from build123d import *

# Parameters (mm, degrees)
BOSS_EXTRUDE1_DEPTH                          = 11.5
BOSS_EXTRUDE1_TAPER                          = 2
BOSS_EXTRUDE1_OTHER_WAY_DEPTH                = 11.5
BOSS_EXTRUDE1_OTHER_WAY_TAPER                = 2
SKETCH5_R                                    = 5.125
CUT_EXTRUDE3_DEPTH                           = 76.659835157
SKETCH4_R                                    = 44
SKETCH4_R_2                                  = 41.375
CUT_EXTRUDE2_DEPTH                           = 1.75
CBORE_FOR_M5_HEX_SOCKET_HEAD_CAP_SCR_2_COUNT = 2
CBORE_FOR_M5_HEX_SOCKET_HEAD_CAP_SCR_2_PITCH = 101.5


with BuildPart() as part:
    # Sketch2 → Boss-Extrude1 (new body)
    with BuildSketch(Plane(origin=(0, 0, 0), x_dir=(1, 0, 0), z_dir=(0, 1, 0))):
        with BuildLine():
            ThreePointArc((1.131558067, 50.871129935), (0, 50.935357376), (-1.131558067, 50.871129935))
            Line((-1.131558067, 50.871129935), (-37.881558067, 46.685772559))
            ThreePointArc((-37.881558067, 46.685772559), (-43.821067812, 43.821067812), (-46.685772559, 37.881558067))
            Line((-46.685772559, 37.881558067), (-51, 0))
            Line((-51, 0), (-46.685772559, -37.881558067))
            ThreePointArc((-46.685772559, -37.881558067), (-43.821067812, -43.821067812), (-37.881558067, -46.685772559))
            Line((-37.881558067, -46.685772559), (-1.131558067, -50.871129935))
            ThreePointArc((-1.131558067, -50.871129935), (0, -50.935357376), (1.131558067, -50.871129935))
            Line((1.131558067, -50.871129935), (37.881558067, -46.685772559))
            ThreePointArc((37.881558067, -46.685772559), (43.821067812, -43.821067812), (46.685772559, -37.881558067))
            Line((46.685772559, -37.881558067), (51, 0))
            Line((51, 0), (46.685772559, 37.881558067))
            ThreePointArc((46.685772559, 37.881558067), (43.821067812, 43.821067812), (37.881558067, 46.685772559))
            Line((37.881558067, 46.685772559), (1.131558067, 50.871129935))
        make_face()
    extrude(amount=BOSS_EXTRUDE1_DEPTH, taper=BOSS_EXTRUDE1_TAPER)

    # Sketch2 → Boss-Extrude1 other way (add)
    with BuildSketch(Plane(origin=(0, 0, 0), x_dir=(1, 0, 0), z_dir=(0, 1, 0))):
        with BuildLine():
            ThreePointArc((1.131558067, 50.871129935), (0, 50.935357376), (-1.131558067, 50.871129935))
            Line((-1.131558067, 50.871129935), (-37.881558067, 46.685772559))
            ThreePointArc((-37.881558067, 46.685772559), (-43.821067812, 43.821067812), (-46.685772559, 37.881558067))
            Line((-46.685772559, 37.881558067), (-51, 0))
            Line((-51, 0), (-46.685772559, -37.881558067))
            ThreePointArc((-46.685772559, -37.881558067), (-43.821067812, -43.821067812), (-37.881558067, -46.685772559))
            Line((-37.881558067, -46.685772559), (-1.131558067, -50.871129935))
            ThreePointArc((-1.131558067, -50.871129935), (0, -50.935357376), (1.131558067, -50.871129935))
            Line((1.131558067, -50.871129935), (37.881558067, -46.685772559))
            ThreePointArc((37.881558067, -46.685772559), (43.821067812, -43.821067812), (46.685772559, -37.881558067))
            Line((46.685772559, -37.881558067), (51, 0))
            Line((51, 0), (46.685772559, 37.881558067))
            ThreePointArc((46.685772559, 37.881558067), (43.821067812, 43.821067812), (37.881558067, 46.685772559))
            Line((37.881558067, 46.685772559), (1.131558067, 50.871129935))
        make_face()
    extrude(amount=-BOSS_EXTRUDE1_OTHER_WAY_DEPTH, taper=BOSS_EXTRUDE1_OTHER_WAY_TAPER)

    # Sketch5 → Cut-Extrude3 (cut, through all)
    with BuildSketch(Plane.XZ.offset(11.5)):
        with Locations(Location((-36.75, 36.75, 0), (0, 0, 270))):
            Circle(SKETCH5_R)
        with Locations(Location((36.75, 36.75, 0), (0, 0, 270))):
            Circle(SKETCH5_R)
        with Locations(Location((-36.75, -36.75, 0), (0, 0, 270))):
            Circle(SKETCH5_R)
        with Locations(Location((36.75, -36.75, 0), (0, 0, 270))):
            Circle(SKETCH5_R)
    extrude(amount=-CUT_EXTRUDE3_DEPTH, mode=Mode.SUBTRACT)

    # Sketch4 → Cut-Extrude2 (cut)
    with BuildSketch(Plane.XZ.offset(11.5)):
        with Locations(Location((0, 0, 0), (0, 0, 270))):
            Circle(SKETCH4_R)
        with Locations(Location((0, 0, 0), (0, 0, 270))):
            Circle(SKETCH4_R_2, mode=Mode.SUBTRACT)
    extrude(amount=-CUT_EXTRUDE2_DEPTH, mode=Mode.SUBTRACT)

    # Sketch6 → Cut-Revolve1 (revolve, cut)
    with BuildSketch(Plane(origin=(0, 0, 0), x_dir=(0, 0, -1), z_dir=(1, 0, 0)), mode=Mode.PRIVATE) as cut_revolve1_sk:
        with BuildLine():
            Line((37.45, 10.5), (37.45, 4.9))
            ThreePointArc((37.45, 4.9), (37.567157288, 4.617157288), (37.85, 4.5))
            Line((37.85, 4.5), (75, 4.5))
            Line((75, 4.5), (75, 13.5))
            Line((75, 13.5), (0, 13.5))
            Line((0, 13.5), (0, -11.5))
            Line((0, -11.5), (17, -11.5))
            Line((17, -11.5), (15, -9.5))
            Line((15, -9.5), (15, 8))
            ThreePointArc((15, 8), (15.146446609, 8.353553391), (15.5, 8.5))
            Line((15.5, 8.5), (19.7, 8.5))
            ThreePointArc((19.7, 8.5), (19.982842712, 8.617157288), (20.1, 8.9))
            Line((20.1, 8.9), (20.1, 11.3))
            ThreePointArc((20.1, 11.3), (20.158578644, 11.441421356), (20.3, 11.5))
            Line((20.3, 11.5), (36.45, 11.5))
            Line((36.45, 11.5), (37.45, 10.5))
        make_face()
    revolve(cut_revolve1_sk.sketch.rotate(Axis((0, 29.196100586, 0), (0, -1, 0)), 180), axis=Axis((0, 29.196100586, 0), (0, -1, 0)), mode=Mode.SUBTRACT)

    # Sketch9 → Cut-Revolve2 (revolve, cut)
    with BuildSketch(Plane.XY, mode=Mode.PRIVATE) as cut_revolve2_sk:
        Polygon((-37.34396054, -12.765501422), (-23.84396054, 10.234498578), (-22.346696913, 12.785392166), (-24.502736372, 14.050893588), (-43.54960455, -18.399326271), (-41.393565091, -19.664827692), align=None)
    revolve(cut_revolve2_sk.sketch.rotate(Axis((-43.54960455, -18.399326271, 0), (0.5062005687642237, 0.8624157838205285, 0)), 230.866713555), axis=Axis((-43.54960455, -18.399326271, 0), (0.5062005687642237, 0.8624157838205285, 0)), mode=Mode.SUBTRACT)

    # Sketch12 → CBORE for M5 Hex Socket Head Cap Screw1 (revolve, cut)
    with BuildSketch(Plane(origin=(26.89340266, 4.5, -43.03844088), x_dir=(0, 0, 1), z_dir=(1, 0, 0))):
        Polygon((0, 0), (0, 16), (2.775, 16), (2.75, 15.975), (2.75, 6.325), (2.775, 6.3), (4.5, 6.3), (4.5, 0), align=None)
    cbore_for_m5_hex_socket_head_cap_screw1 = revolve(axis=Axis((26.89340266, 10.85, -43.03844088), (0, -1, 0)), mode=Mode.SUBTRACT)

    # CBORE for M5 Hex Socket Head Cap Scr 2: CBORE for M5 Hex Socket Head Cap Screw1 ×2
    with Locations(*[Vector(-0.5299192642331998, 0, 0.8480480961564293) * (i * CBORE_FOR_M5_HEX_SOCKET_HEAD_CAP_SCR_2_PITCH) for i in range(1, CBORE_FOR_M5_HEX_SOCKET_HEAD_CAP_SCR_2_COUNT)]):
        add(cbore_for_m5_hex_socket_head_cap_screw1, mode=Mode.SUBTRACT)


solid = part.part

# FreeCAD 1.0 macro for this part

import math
import FreeCAD as App
import Part
import Sketcher
from FreeCAD import Vector
Q = App.Units.Quantity

doc = App.newDocument("Part")
body = doc.addObject("PartDesign::Body", "Body")

# Sketch on XZ plane
sketch1 = body.newObject("Sketcher::SketchObject", "Sketch")
sketch1.AttachmentSupport = (doc.getObject("XZ_Plane"), [""])
sketch1.MapMode = "FlatFace"
sketch1.addGeometry(Part.ArcOfCircle(Part.Circle(Vector(0, -40.9, 0), Vector(0, 0, 1), 10), math.radians(-96.5), math.radians(-83.5)), False)
sketch1.addGeometry(Part.LineSegment(Vector(-1.1, -50.9, 0), Vector(-37.9, -46.7, 0)), False)
sketch1.addGeometry(Part.ArcOfCircle(Part.Circle(Vector(-36.8, -36.8, 0), Vector(0, 0, 1), 10), math.radians(-174), math.radians(-96)), False)
sketch1.addGeometry(Part.LineSegment(Vector(-46.7, -37.9, 0), Vector(-51, 0, 0)), False)
sketch1.addGeometry(Part.LineSegment(Vector(-51, 0, 0), Vector(-46.7, 37.9, 0)), False)
sketch1.addGeometry(Part.ArcOfCircle(Part.Circle(Vector(-36.8, 36.8, 0), Vector(0, 0, 1), 10), math.radians(96), math.radians(174)), False)
sketch1.addGeometry(Part.LineSegment(Vector(-37.9, 46.7, 0), Vector(-1.1, 50.9, 0)), False)
sketch1.addGeometry(Part.ArcOfCircle(Part.Circle(Vector(0, 40.9, 0), Vector(0, 0, 1), 10), math.radians(83.5), math.radians(96.5)), False)
sketch1.addGeometry(Part.LineSegment(Vector(1.1, 50.9, 0), Vector(37.9, 46.7, 0)), False)
sketch1.addGeometry(Part.ArcOfCircle(Part.Circle(Vector(36.8, 36.8, 0), Vector(0, 0, 1), 10), math.radians(6), math.radians(84)), False)
sketch1.addGeometry(Part.LineSegment(Vector(46.7, 37.9, 0), Vector(51, 0, 0)), False)
sketch1.addGeometry(Part.LineSegment(Vector(51, 0, 0), Vector(46.7, -37.9, 0)), False)
sketch1.addGeometry(Part.ArcOfCircle(Part.Circle(Vector(36.8, -36.8, 0), Vector(0, 0, 1), 10), math.radians(-84), math.radians(-6)), False)
sketch1.addGeometry(Part.LineSegment(Vector(37.9, -46.7, 0), Vector(1.1, -50.9, 0)), False)
sketch1.addConstraint(Sketcher.Constraint("Tangent", 0, 1, 1, 1))
sketch1.addConstraint(Sketcher.Constraint("Tangent", 1, 2, 2, 2))
sketch1.addConstraint(Sketcher.Constraint("Tangent", 2, 1, 3, 1))
sketch1.addConstraint(Sketcher.Constraint("Coincident", 3, 2, 4, 1))
sketch1.addConstraint(Sketcher.Constraint("Tangent", 4, 2, 5, 2))
sketch1.addConstraint(Sketcher.Constraint("Tangent", 5, 1, 6, 1))
sketch1.addConstraint(Sketcher.Constraint("Tangent", 6, 2, 7, 2))
sketch1.addConstraint(Sketcher.Constraint("Tangent", 7, 1, 8, 1))
sketch1.addConstraint(Sketcher.Constraint("Tangent", 8, 2, 9, 2))
sketch1.addConstraint(Sketcher.Constraint("Tangent", 9, 1, 10, 1))
sketch1.addConstraint(Sketcher.Constraint("Coincident", 10, 2, 11, 1))
sketch1.addConstraint(Sketcher.Constraint("Tangent", 11, 2, 12, 2))
sketch1.addConstraint(Sketcher.Constraint("Tangent", 12, 1, 13, 1))
sketch1.addConstraint(Sketcher.Constraint("Tangent", 13, 2, 0, 2))
sketch1.addConstraint(Sketcher.Constraint("Equal", 0, 2))
sketch1.addConstraint(Sketcher.Constraint("Equal", 2, 5))
sketch1.addConstraint(Sketcher.Constraint("Equal", 5, 7))
sketch1.addConstraint(Sketcher.Constraint("Equal", 7, 9))
sketch1.addConstraint(Sketcher.Constraint("Equal", 9, 12))
sketch1.addConstraint(Sketcher.Constraint("Symmetric", 0, 3, 7, 3, -1, 1))
sketch1.addConstraint(Sketcher.Constraint("Symmetric", 2, 3, 9, 3, -1, 1))
sketch1.addConstraint(Sketcher.Constraint("Symmetric", 5, 3, 12, 3, -1, 1))
sketch1.addConstraint(Sketcher.Constraint("Symmetric", 3, 2, 10, 2, -1, 1))
sketch1.addConstraint(Sketcher.Constraint("Symmetric", 5, 3, 9, 3, -2))
sketch1.addConstraint(Sketcher.Constraint("PointOnObject", 0, 3, -2))
sketch1.addConstraint(Sketcher.Constraint("PointOnObject", 3, 2, -1))
sketch1.addConstraint(Sketcher.Constraint("Perpendicular", 1, 4))
sketch1.addConstraint(Sketcher.Constraint("Radius", 0, 10.0))
sketch1.addConstraint(Sketcher.Constraint("DistanceX", 3, 2, -1, 1, 51.0))
sketch1.addConstraint(Sketcher.Constraint("DistanceY", 2, 3, 5, 3, 73.5))
sketch1.addConstraint(Sketcher.Constraint("DistanceX", 5, 3, 9, 3, 73.5))
pad1 = body.newObject("PartDesign::Pad", "Pad")
pad1.Profile = sketch1
pad1.Length = 11.5
pad1.Reversed = True
pad1.TaperAngle = -2

# Sketch on XZ plane
sketch2 = body.newObject("Sketcher::SketchObject", "Sketch001")
sketch2.AttachmentSupport = (doc.getObject("XZ_Plane"), [""])
sketch2.MapMode = "FlatFace"
sketch2.addGeometry(Part.ArcOfCircle(Part.Circle(Vector(0, -40.9, 0), Vector(0, 0, 1), 10), math.radians(-96.5), math.radians(-83.5)), False)
sketch2.addGeometry(Part.LineSegment(Vector(-1.1, -50.9, 0), Vector(-37.9, -46.7, 0)), False)
sketch2.addGeometry(Part.ArcOfCircle(Part.Circle(Vector(-36.8, -36.8, 0), Vector(0, 0, 1), 10), math.radians(-174), math.radians(-96)), False)
sketch2.addGeometry(Part.LineSegment(Vector(-46.7, -37.9, 0), Vector(-51, 0, 0)), False)
sketch2.addGeometry(Part.LineSegment(Vector(-51, 0, 0), Vector(-46.7, 37.9, 0)), False)
sketch2.addGeometry(Part.ArcOfCircle(Part.Circle(Vector(-36.8, 36.8, 0), Vector(0, 0, 1), 10), math.radians(96), math.radians(174)), False)
sketch2.addGeometry(Part.LineSegment(Vector(-37.9, 46.7, 0), Vector(-1.1, 50.9, 0)), False)
sketch2.addGeometry(Part.ArcOfCircle(Part.Circle(Vector(0, 40.9, 0), Vector(0, 0, 1), 10), math.radians(83.5), math.radians(96.5)), False)
sketch2.addGeometry(Part.LineSegment(Vector(1.1, 50.9, 0), Vector(37.9, 46.7, 0)), False)
sketch2.addGeometry(Part.ArcOfCircle(Part.Circle(Vector(36.8, 36.8, 0), Vector(0, 0, 1), 10), math.radians(6), math.radians(84)), False)
sketch2.addGeometry(Part.LineSegment(Vector(46.7, 37.9, 0), Vector(51, 0, 0)), False)
sketch2.addGeometry(Part.LineSegment(Vector(51, 0, 0), Vector(46.7, -37.9, 0)), False)
sketch2.addGeometry(Part.ArcOfCircle(Part.Circle(Vector(36.8, -36.8, 0), Vector(0, 0, 1), 10), math.radians(-84), math.radians(-6)), False)
sketch2.addGeometry(Part.LineSegment(Vector(37.9, -46.7, 0), Vector(1.1, -50.9, 0)), False)
sketch2.addConstraint(Sketcher.Constraint("Tangent", 0, 1, 1, 1))
sketch2.addConstraint(Sketcher.Constraint("Tangent", 1, 2, 2, 2))
sketch2.addConstraint(Sketcher.Constraint("Tangent", 2, 1, 3, 1))
sketch2.addConstraint(Sketcher.Constraint("Coincident", 3, 2, 4, 1))
sketch2.addConstraint(Sketcher.Constraint("Tangent", 4, 2, 5, 2))
sketch2.addConstraint(Sketcher.Constraint("Tangent", 5, 1, 6, 1))
sketch2.addConstraint(Sketcher.Constraint("Tangent", 6, 2, 7, 2))
sketch2.addConstraint(Sketcher.Constraint("Tangent", 7, 1, 8, 1))
sketch2.addConstraint(Sketcher.Constraint("Tangent", 8, 2, 9, 2))
sketch2.addConstraint(Sketcher.Constraint("Tangent", 9, 1, 10, 1))
sketch2.addConstraint(Sketcher.Constraint("Coincident", 10, 2, 11, 1))
sketch2.addConstraint(Sketcher.Constraint("Tangent", 11, 2, 12, 2))
sketch2.addConstraint(Sketcher.Constraint("Tangent", 12, 1, 13, 1))
sketch2.addConstraint(Sketcher.Constraint("Tangent", 13, 2, 0, 2))
sketch2.addConstraint(Sketcher.Constraint("Equal", 0, 2))
sketch2.addConstraint(Sketcher.Constraint("Equal", 2, 5))
sketch2.addConstraint(Sketcher.Constraint("Equal", 5, 7))
sketch2.addConstraint(Sketcher.Constraint("Equal", 7, 9))
sketch2.addConstraint(Sketcher.Constraint("Equal", 9, 12))
sketch2.addConstraint(Sketcher.Constraint("Symmetric", 0, 3, 7, 3, -1, 1))
sketch2.addConstraint(Sketcher.Constraint("Symmetric", 2, 3, 9, 3, -1, 1))
sketch2.addConstraint(Sketcher.Constraint("Symmetric", 5, 3, 12, 3, -1, 1))
sketch2.addConstraint(Sketcher.Constraint("Symmetric", 3, 2, 10, 2, -1, 1))
sketch2.addConstraint(Sketcher.Constraint("Symmetric", 5, 3, 9, 3, -2))
sketch2.addConstraint(Sketcher.Constraint("PointOnObject", 0, 3, -2))
sketch2.addConstraint(Sketcher.Constraint("PointOnObject", 3, 2, -1))
sketch2.addConstraint(Sketcher.Constraint("Perpendicular", 1, 4))
sketch2.addConstraint(Sketcher.Constraint("Radius", 0, 10.0))
sketch2.addConstraint(Sketcher.Constraint("DistanceX", 3, 2, -1, 1, 51.0))
sketch2.addConstraint(Sketcher.Constraint("DistanceY", 2, 3, 5, 3, 73.5))
sketch2.addConstraint(Sketcher.Constraint("DistanceX", 5, 3, 9, 3, 73.5))
pad2 = body.newObject("PartDesign::Pad", "Pad001")
pad2.Profile = sketch2
pad2.Length = 11.5
pad2.TaperAngle = -2

# Sketch on XZ plane
sketch3 = body.newObject("Sketcher::SketchObject", "Sketch002")
sketch3.AttachmentSupport = (doc.getObject("XZ_Plane"), [""])
sketch3.MapMode = "FlatFace"
sketch3.AttachmentOffset = App.Placement(Vector(0, 0, 11.5), App.Rotation())
sketch3.addGeometry(Part.Circle(Vector(-37, 37, 0), Vector(0, 0, 1), 5), False)
sketch3.addGeometry(Part.Circle(Vector(37, 37, 0), Vector(0, 0, 1), 5), False)
sketch3.addGeometry(Part.Circle(Vector(-37, -37, 0), Vector(0, 0, 1), 5), False)
sketch3.addGeometry(Part.Circle(Vector(37, -37, 0), Vector(0, 0, 1), 5), False)
sketch3.addConstraint(Sketcher.Constraint("Equal", 0, 1))
sketch3.addConstraint(Sketcher.Constraint("Equal", 1, 2))
sketch3.addConstraint(Sketcher.Constraint("Equal", 2, 3))
sketch3.addConstraint(Sketcher.Constraint("Symmetric", 1, 3, 2, 3, -1, 1))
sketch3.addConstraint(Sketcher.Constraint("Symmetric", 0, 3, 3, 3, -1, 1))
sketch3.addConstraint(Sketcher.Constraint("Symmetric", 0, 3, 1, 3, -2))
sketch3.addConstraint(Sketcher.Constraint("Diameter", 0, 10.25))
sketch3.addConstraint(Sketcher.Constraint("DistanceX", 0, 3, 1, 3, 73.5))
sketch3.addConstraint(Sketcher.Constraint("DistanceY", 2, 3, 0, 3, 73.5))
pocket1 = body.newObject("PartDesign::Pocket", "Pocket")
pocket1.Profile = sketch3
pocket1.Type = "ThroughAll"

# Sketch on XZ plane
sketch4 = body.newObject("Sketcher::SketchObject", "Sketch003")
sketch4.AttachmentSupport = (doc.getObject("XZ_Plane"), [""])
sketch4.MapMode = "FlatFace"
sketch4.AttachmentOffset = App.Placement(Vector(0, 0, 11.5), App.Rotation())
sketch4.addGeometry(Part.Circle(Vector(0, 0, 0), Vector(0, 0, 1), 44), False)
sketch4.addGeometry(Part.Circle(Vector(0, 0, 0), Vector(0, 0, 1), 41), False)
sketch4.addConstraint(Sketcher.Constraint("Coincident", 0, 3, -1, 1))
sketch4.addConstraint(Sketcher.Constraint("Coincident", 1, 3, -1, 1))
sketch4.addConstraint(Sketcher.Constraint("Diameter", 0, 88.0))
sketch4.addConstraint(Sketcher.Constraint("Diameter", 1, 82.75))
pocket2 = body.newObject("PartDesign::Pocket", "Pocket001")
pocket2.Profile = sketch4
pocket2.Length = 1.75

# Sketch on YZ plane
sketch5 = body.newObject("Sketcher::SketchObject", "Sketch004")
sketch5.AttachmentSupport = (doc.getObject("YZ_Plane"), [""])
sketch5.MapMode = "FlatFace"
sketch5.addGeometry(Part.LineSegment(Vector(10.5, -37.45, 0), Vector(4.9, -37.45, 0)), False)
sketch5.addGeometry(Part.ArcOfCircle(Part.Circle(Vector(4.9, -37.85, 0), Vector(0, 0, 1), 0.4), math.radians(90), math.radians(180)), False)
sketch5.addGeometry(Part.LineSegment(Vector(4.5, -37.85, 0), Vector(4.5, -75, 0)), False)
sketch5.addGeometry(Part.LineSegment(Vector(4.5, -75, 0), Vector(13.5, -75, 0)), False)
sketch5.addGeometry(Part.LineSegment(Vector(13.5, -75, 0), Vector(13.5, 0, 0)), False)
sketch5.addGeometry(Part.LineSegment(Vector(13.5, 0, 0), Vector(-11.5, 0, 0)), False)
sketch5.addGeometry(Part.LineSegment(Vector(-11.5, 0, 0), Vector(-11.5, -17, 0)), False)
sketch5.addGeometry(Part.LineSegment(Vector(-11.5, -17, 0), Vector(-9.5, -15, 0)), False)
sketch5.addGeometry(Part.LineSegment(Vector(-9.5, -15, 0), Vector(8, -15, 0)), False)
sketch5.addGeometry(Part.ArcOfCircle(Part.Circle(Vector(8, -15.5, 0), Vector(0, 0, 1), 0.5), math.radians(0), math.radians(90)), False)
sketch5.addGeometry(Part.LineSegment(Vector(8.5, -15.5, 0), Vector(8.5, -19.7, 0)), False)
sketch5.addGeometry(Part.ArcOfCircle(Part.Circle(Vector(8.9, -19.7, 0), Vector(0, 0, 1), 0.4), math.radians(-180), math.radians(-90)), False)
sketch5.addGeometry(Part.LineSegment(Vector(8.9, -20.1, 0), Vector(11.3, -20.1, 0)), False)
sketch5.addGeometry(Part.ArcOfCircle(Part.Circle(Vector(11.3, -20.3, 0), Vector(0, 0, 1), 0.2), math.radians(0), math.radians(90)), False)
sketch5.addGeometry(Part.LineSegment(Vector(11.5, -20.3, 0), Vector(11.5, -36.45, 0)), False)
sketch5.addGeometry(Part.LineSegment(Vector(11.5, -36.45, 0), Vector(10.5, -37.45, 0)), False)
sketch5.addConstraint(Sketcher.Constraint("Tangent", 0, 2, 1, 1))
sketch5.addConstraint(Sketcher.Constraint("Tangent", 1, 2, 2, 1))
sketch5.addConstraint(Sketcher.Constraint("Coincident", 2, 2, 3, 1))
sketch5.addConstraint(Sketcher.Constraint("Coincident", 3, 2, 4, 1))
sketch5.addConstraint(Sketcher.Constraint("Coincident", 4, 2, 5, 1))
sketch5.addConstraint(Sketcher.Constraint("Coincident", 5, 2, 6, 1))
sketch5.addConstraint(Sketcher.Constraint("Coincident", 6, 2, 7, 1))
sketch5.addConstraint(Sketcher.Constraint("Coincident", 7, 2, 8, 1))
sketch5.addConstraint(Sketcher.Constraint("Tangent", 8, 2, 9, 2))
sketch5.addConstraint(Sketcher.Constraint("Tangent", 9, 1, 10, 1))
sketch5.addConstraint(Sketcher.Constraint("Tangent", 10, 2, 11, 1))
sketch5.addConstraint(Sketcher.Constraint("Tangent", 11, 2, 12, 1))
sketch5.addConstraint(Sketcher.Constraint("Tangent", 12, 2, 13, 2))
sketch5.addConstraint(Sketcher.Constraint("Tangent", 13, 1, 14, 1))
sketch5.addConstraint(Sketcher.Constraint("Coincident", 14, 2, 15, 1))
sketch5.addConstraint(Sketcher.Constraint("Coincident", 15, 2, 0, 1))
sketch5.addConstraint(Sketcher.Constraint("Horizontal", 0))
sketch5.addConstraint(Sketcher.Constraint("Vertical", 2))
sketch5.addConstraint(Sketcher.Constraint("Horizontal", 3))
sketch5.addConstraint(Sketcher.Constraint("Vertical", 4))
sketch5.addConstraint(Sketcher.Constraint("Horizontal", 5))
sketch5.addConstraint(Sketcher.Constraint("Vertical", 6))
sketch5.addConstraint(Sketcher.Constraint("Horizontal", 8))
sketch5.addConstraint(Sketcher.Constraint("Vertical", 10))
sketch5.addConstraint(Sketcher.Constraint("Horizontal", 12))
sketch5.addConstraint(Sketcher.Constraint("Vertical", 14))
sketch5.addConstraint(Sketcher.Constraint("Equal", 1, 11))
sketch5.addConstraint(Sketcher.Constraint("PointOnObject", 4, 2, -1))
sketch5.addConstraint(Sketcher.Constraint("Parallel", 7, 15))
sketch5.addConstraint(Sketcher.Constraint("Radius", 1, 0.4))
sketch5.addConstraint(Sketcher.Constraint("Radius", 9, 0.5))
sketch5.addConstraint(Sketcher.Constraint("Radius", 13, 0.2))
sketch5.addConstraint(Sketcher.Constraint("DistanceX", 3, 1, 3, 2, 9.0))
sketch5.addConstraint(Sketcher.Constraint("DistanceX", 5, 2, 5, 1, 25.0))
sketch5.addConstraint(Sketcher.Constraint("DistanceY", 4, 1, 4, 2, 75.0))
sketch5.addConstraint(Sketcher.Constraint("DistanceY", 6, 2, 6, 1, 17.0))
sketch5.addConstraint(Sketcher.Constraint("Angle", 7, Q("45 deg")))
sketch5.addConstraint(Sketcher.Constraint("DistanceX", 0, 2, 0, 1, 5.6))
sketch5.addConstraint(Sketcher.Constraint("DistanceX", 8, 1, 8, 2, 17.5))
sketch5.addConstraint(Sketcher.Constraint("DistanceX", 12, 1, 12, 2, 2.4))
sketch5.addConstraint(Sketcher.Constraint("DistanceY", 10, 2, 10, 1, 4.2))
sketch5.addConstraint(Sketcher.Constraint("DistanceX", -1, 1, 9, 3, 8.0))
sketch5.addConstraint(Sketcher.Constraint("DistanceY", 7, 2, -1, 1, 15.0))
sketch5.addConstraint(Sketcher.Constraint("DistanceY", 2, 2, 2, 1, 37.15))
groove = body.newObject("PartDesign::Groove", "Groove")
groove.Profile = sketch5
groove.ReferenceAxis = (sketch5, ["H_Axis"])
groove.Angle = 360

# Sketch on XY plane
sketch6 = body.newObject("Sketcher::SketchObject", "Sketch005")
sketch6.AttachmentSupport = (doc.getObject("XY_Plane"), [""])
sketch6.MapMode = "FlatFace"
sketch6.addGeometry(Part.LineSegment(Vector(-37.3, -12.8, 0), Vector(-23.8, 10.2, 0)), False)
sketch6.addGeometry(Part.LineSegment(Vector(-23.8, 10.2, 0), Vector(-22.3, 12.8, 0)), False)
sketch6.addGeometry(Part.LineSegment(Vector(-22.3, 12.8, 0), Vector(-24.5, 14.1, 0)), False)
sketch6.addGeometry(Part.LineSegment(Vector(-24.5, 14.1, 0), Vector(-43.5, -18.4, 0)), False)
sketch6.addGeometry(Part.LineSegment(Vector(-43.5, -18.4, 0), Vector(-41.4, -19.7, 0)), False)
sketch6.addGeometry(Part.LineSegment(Vector(-41.4, -19.7, 0), Vector(-37.3, -12.8, 0)), False)
sketch6.addGeometry(Part.LineSegment(Vector(-43.5, -18.4, 0), Vector(-24.5, 14.1, 0)), True)  # axis
sketch6.addConstraint(Sketcher.Constraint("Coincident", 0, 2, 1, 1))
sketch6.addConstraint(Sketcher.Constraint("Coincident", 1, 2, 2, 1))
sketch6.addConstraint(Sketcher.Constraint("Coincident", 2, 2, 3, 1))
sketch6.addConstraint(Sketcher.Constraint("Coincident", 3, 2, 4, 1))
sketch6.addConstraint(Sketcher.Constraint("Coincident", 4, 2, 5, 1))
sketch6.addConstraint(Sketcher.Constraint("Coincident", 5, 2, 0, 1))
sketch6.addConstraint(Sketcher.Constraint("Coincident", 6, 1, 3, 2))
sketch6.addConstraint(Sketcher.Constraint("Coincident", 6, 2, 2, 2))
sketch6.addConstraint(Sketcher.Constraint("Parallel", 0, 1))
sketch6.addConstraint(Sketcher.Constraint("Perpendicular", 1, 2))
sketch6.addConstraint(Sketcher.Constraint("Perpendicular", 2, 3))
sketch6.addConstraint(Sketcher.Constraint("Perpendicular", 3, 4))
sketch6.addConstraint(Sketcher.Constraint("Perpendicular", 4, 5))
sketch6.addConstraint(Sketcher.Constraint("Distance", 5, 8.0))
sketch6.addConstraint(Sketcher.Constraint("DistanceY", 5, 2, 0, 2, 23.0))
sketch6.addConstraint(Sketcher.Constraint("Distance", 2, 2.5))
sketch6.addConstraint(Sketcher.Constraint("DistanceX", 5, 2, 0, 2, 13.5))
sketch6.addConstraint(Sketcher.Constraint("DistanceY", -1, 1, 0, 2, 10.234499))
sketch6.addConstraint(Sketcher.Constraint("DistanceX", 0, 2, -1, 1, 23.843961))
sketch6.addConstraint(Sketcher.Constraint("DistanceX", 3, 2, 2, 2, 19.046868))
groove2 = body.newObject("PartDesign::Groove", "Groove001")
groove2.Profile = sketch6
groove2.ReferenceAxis = (sketch6, ["Axis0"])
groove2.Angle = 360

# Sketch on YZ plane
sketch7 = body.newObject("Sketcher::SketchObject", "Sketch006")
sketch7.AttachmentSupport = (doc.getObject("YZ_Plane"), [""])
sketch7.MapMode = "FlatFace"
sketch7.AttachmentOffset = App.Placement(Vector(0, 0, 26.893403), App.Rotation())
sketch7.addGeometry(Part.LineSegment(Vector(-11.5, -43.038, 0), Vector(4.5, -43.038, 0)), False)
sketch7.addGeometry(Part.LineSegment(Vector(4.5, -43.038, 0), Vector(4.5, -38.538, 0)), False)
sketch7.addGeometry(Part.LineSegment(Vector(4.5, -38.538, 0), Vector(-1.8, -38.538, 0)), False)
sketch7.addGeometry(Part.LineSegment(Vector(-1.8, -38.538, 0), Vector(-1.8, -40.263, 0)), False)
sketch7.addGeometry(Part.LineSegment(Vector(-1.8, -40.263, 0), Vector(-1.825, -40.288, 0)), False)
sketch7.addGeometry(Part.LineSegment(Vector(-1.825, -40.288, 0), Vector(-11.475, -40.288, 0)), False)
sketch7.addGeometry(Part.LineSegment(Vector(-11.475, -40.288, 0), Vector(-11.5, -40.263, 0)), False)
sketch7.addGeometry(Part.LineSegment(Vector(-11.5, -40.263, 0), Vector(-11.5, -43.038, 0)), False)
sketch7.addGeometry(Part.LineSegment(Vector(4.5, -43.038, 0), Vector(-11.5, -43.038, 0)), True)  # axis
sketch7.addConstraint(Sketcher.Constraint("Coincident", 0, 2, 1, 1))
sketch7.addConstraint(Sketcher.Constraint("Coincident", 1, 2, 2, 1))
sketch7.addConstraint(Sketcher.Constraint("Coincident", 2, 2, 3, 1))
sketch7.addConstraint(Sketcher.Constraint("Coincident", 3, 2, 4, 1))
sketch7.addConstraint(Sketcher.Constraint("Coincident", 4, 2, 5, 1))
sketch7.addConstraint(Sketcher.Constraint("Coincident", 5, 2, 6, 1))
sketch7.addConstraint(Sketcher.Constraint("Coincident", 6, 2, 7, 1))
sketch7.addConstraint(Sketcher.Constraint("Coincident", 7, 2, 0, 1))
sketch7.addConstraint(Sketcher.Constraint("Horizontal", 0))
sketch7.addConstraint(Sketcher.Constraint("Vertical", 1))
sketch7.addConstraint(Sketcher.Constraint("Horizontal", 2))
sketch7.addConstraint(Sketcher.Constraint("Vertical", 3))
sketch7.addConstraint(Sketcher.Constraint("Horizontal", 5))
sketch7.addConstraint(Sketcher.Constraint("Vertical", 7))
sketch7.addConstraint(Sketcher.Constraint("Horizontal", 8))
sketch7.addConstraint(Sketcher.Constraint("Coincident", 8, 1, 0, 2))
sketch7.addConstraint(Sketcher.Constraint("Perpendicular", 4, 6))
sketch7.addConstraint(Sketcher.Constraint("Horizontal", 3, 2, 6, 2))
sketch7.addConstraint(Sketcher.Constraint("Vertical", 6, 2, 8, 2))
sketch7.addConstraint(Sketcher.Constraint("Equal", 4, 6))
sketch7.addConstraint(Sketcher.Constraint("DistanceX", 0, 1, 0, 2, 16.0))
sketch7.addConstraint(Sketcher.Constraint("DistanceX", 2, 2, 2, 1, 6.3))
sketch7.addConstraint(Sketcher.Constraint("DistanceY", 1, 1, 1, 2, 4.5))
sketch7.addConstraint(Sketcher.Constraint("DistanceX", 5, 2, 5, 1, 9.65))
sketch7.addConstraint(Sketcher.Constraint("DistanceX", -1, 1, 0, 2, 4.5))
sketch7.addConstraint(Sketcher.Constraint("DistanceY", 3, 2, 3, 1, 1.725))
sketch7.addConstraint(Sketcher.Constraint("DistanceY", 0, 2, -1, 1, 43.038441))
groove3 = body.newObject("PartDesign::Groove", "Groove002")
groove3.Profile = sketch7
groove3.ReferenceAxis = (sketch7, ["Axis0"])
groove3.Angle = 360
doc.recompute()

datumline = body.newObject("PartDesign::Line", "DatumLine")
datumline.Placement = App.Placement(Vector(0, 0, 0), App.Rotation(Vector(0, 0, 1), Vector(-0.529919264, 0, 0.848048096)))
linearpattern = body.newObject("PartDesign::LinearPattern", "LinearPattern")
linearpattern.Originals = [groove3]
linearpattern.Direction = (datumline, [""])
linearpattern.Mode = "offset"
linearpattern.Offset = 101.5
linearpattern.Occurrences = 2
body.Tip = linearpattern

doc.recompute()
